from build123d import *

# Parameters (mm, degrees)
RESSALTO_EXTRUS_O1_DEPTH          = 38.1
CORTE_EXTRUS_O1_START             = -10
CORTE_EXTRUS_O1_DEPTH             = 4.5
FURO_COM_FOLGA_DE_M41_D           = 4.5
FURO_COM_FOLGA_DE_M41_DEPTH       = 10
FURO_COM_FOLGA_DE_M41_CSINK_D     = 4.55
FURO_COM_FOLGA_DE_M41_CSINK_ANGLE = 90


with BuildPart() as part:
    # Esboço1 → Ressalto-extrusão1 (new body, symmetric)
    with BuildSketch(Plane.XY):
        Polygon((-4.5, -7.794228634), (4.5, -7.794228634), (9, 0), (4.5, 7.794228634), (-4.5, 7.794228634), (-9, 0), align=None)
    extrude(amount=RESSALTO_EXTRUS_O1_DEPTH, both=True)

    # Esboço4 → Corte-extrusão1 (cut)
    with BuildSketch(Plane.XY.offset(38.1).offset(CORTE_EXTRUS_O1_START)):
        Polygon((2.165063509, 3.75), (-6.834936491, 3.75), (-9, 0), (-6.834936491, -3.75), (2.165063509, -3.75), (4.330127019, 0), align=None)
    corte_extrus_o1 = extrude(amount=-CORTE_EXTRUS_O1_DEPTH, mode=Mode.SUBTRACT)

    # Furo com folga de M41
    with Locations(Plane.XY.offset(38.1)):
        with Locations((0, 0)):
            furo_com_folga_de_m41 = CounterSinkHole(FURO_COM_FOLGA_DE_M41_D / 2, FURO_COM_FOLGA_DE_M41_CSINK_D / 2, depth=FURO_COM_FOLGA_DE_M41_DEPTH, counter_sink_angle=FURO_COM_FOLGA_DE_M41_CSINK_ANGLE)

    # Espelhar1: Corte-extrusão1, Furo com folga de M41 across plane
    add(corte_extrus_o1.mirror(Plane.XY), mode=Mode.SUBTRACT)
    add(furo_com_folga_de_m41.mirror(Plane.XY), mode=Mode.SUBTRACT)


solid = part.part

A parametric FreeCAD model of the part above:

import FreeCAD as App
import Part
import Sketcher
from FreeCAD import Vector
Q = App.Units.Quantity


def add_polygon(sketch, points):
    """Adds a closed chain of lines whose ends are joined by coincident constraints."""
    first, n = sketch.GeometryCount, len(points)
    for a, b in zip(points, points[1:] + points[:1]):
        sketch.addGeometry(Part.LineSegment(App.Vector(*a, 0), App.Vector(*b, 0)), False)
    for i in range(n):
        sketch.addConstraint(Sketcher.Constraint("Coincident", first + i, 2, first + (i + 1) % n, 1))

doc = App.newDocument("Part")
body = doc.addObject("PartDesign::Body", "Body")

sketch1 = doc.addObject("Sketcher::SketchObject", "Sketch")
body.addObject(sketch1)
sketch1.AttachmentSupport = (doc.XY_Plane, [""])
sketch1.MapMode = "FlatFace"
add_polygon(sketch1, [(-4, -8), (4, -8), (9, 0), (4, 8), (-4, 8), (-9, 0)])
sketch1.addConstraint([
    Sketcher.Constraint("Horizontal", 0),
    Sketcher.Constraint("Horizontal", 3),
    Sketcher.Constraint("Symmetric", 0, 2, 3, 2, -1, 1),
    Sketcher.Constraint("Symmetric", 1, 2, 4, 2, -1, 1),
    Sketcher.Constraint("PointOnObject", 1, 2, -1),
    Sketcher.Constraint("Parallel", 2, 5),
    Sketcher.Constraint("Vertical", 0, 2, 2, 2),
    Sketcher.Constraint("DistanceX", 0, 1, 0, 2, Q("9 mm")),
    Sketcher.Constraint("Angle", 1, Q("60 deg")),
    Sketcher.Constraint("Distance", 1, Q("9 mm")),
])
pad1 = doc.addObject("PartDesign::Pad", "Pad")
body.addObject(pad1)
pad1.Profile = sketch1
pad1.Length = 76.2
pad1.Midplane = True

sketch2 = doc.addObject("Sketcher::SketchObject", "Sketch001")
body.addObject(sketch2)
sketch2.AttachmentSupport = (doc.XY_Plane, [""])
sketch2.MapMode = "FlatFace"
sketch2.AttachmentOffset = App.Placement(Vector(0, 0, 28.1), App.Rotation())
add_polygon(sketch2, [(2.2, 3.8), (-6.8, 3.8), (-9, 0), (-6.8, -3.8), (2.2, -3.8), (4.3, 0)])
sketch2.addConstraint([
    Sketcher.Constraint("Horizontal", 0),
    Sketcher.Constraint("Horizontal", 3),
    Sketcher.Constraint("Symmetric", 0, 2, 2, 2, -1),
    Sketcher.Constraint("PointOnObject", 1, 2, -1),
    Sketcher.Constraint("PointOnObject", 4, 2, -1),
    Sketcher.Constraint("Parallel", 1, 4),
    Sketcher.Constraint("Parallel", 2, 5),
    Sketcher.Constraint("DistanceX", 0, 2, 0, 1, Q("9 mm")),
    Sketcher.Constraint("Angle", 1, Q("-120 deg")),
    Sketcher.Constraint("DistanceX", 1, 2, -1, 1, Q("9 mm")),
    Sketcher.Constraint("DistanceY", 2, 2, 0, 2, Q("7.5 mm")),
])
pocket1 = doc.addObject("PartDesign::Pocket", "Pocket")
body.addObject(pocket1)
pocket1.Profile = sketch2
pocket1.Length = 4.5

sketch3 = doc.addObject("Sketcher::SketchObject", "Sketch002")
body.addObject(sketch3)
sketch3.AttachmentSupport = (doc.XY_Plane, [""])
sketch3.MapMode = "FlatFace"
sketch3.AttachmentOffset = App.Placement(Vector(0, 0, 38.1), App.Rotation())
sketch3.addGeometry(Part.Circle(Vector(0, 0, 0), Vector(0, 0, 1), 2.2), False)
sketch3.addConstraint([
    Sketcher.Constraint("Coincident", 0, 3, -1, 1),
    Sketcher.Constraint("Diameter", 0, Q("4.5 mm")),
])
doc.recompute()
hole = doc.addObject("PartDesign::Hole", "Hole")
body.addObject(hole)
hole.Profile = sketch3
hole.ThreadType = "None"
hole.Diameter = 4.5
hole.DepthType = "Dimension"
hole.Depth = 10
hole.DrillPoint = "Flat"
hole.HoleCutType = "Countersink"
hole.HoleCutDiameter = 4.55
hole.HoleCutCountersinkAngle = 90
doc.recompute()

mirrored = doc.addObject("PartDesign::Mirrored", "Mirrored")
body.addObject(mirrored)
mirrored.Originals = [pocket1, hole]
mirrored.MirrorPlane = (doc.XY_Plane, [""])
body.Tip = mirrored

doc.recompute()
